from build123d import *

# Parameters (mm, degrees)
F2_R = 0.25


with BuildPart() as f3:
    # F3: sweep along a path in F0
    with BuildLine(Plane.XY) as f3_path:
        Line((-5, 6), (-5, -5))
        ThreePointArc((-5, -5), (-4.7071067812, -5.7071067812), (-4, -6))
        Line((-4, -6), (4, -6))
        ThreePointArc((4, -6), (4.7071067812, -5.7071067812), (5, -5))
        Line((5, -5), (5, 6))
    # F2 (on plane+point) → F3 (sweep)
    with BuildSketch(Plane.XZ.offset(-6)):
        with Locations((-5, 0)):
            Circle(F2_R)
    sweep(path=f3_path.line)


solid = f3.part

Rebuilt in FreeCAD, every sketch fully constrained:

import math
import FreeCAD as App
import Part
import Sketcher
from FreeCAD import Vector

doc = App.newDocument("Part")
body = doc.addObject("PartDesign::Body", "Body")

sketch1 = body.newObject("Sketcher::SketchObject", "Sketch")
sketch1.AttachmentSupport = (doc.getObject("XZ_Plane"), [""])
sketch1.MapMode = "FlatFace"
sketch1.AttachmentOffset = App.Placement(Vector(0, 0, -6), App.Rotation())
sketch1.addGeometry(Part.Circle(Vector(-5, 0, 0), Vector(0, 0, 1), 0.25), False)
sketch1.addConstraint([
    Sketcher.Constraint("PointOnObject", 0, 3, -1),
    Sketcher.Constraint("Diameter", 0, 0.5),
    Sketcher.Constraint("DistanceX", 0, 3, -1, 1, 5.0),
])

sketch2 = body.newObject("Sketcher::SketchObject", "Sketch001")
sketch2.AttachmentSupport = (doc.getObject("XY_Plane"), [""])
sketch2.MapMode = "FlatFace"
sketch2.addGeometry([
    Part.LineSegment(Vector(-5, 6, 0), Vector(-5, -5, 0)),
    Part.ArcOfCircle(Part.Circle(Vector(-4, -5, 0), Vector(0, 0, 1), 1), math.radians(180), math.radians(270)),
    Part.LineSegment(Vector(-4, -6, 0), Vector(4, -6, 0)),
    Part.ArcOfCircle(Part.Circle(Vector(4, -5, 0), Vector(0, 0, 1), 1), math.radians(-90), math.radians(0)),
    Part.LineSegment(Vector(5, -5, 0), Vector(5, 6, 0)),
], False)
sketch2.addConstraint([
    Sketcher.Constraint("Tangent", 0, 2, 1, 1),
    Sketcher.Constraint("Tangent", 1, 2, 2, 1),
    Sketcher.Constraint("Tangent", 2, 2, 3, 1),
    Sketcher.Constraint("Tangent", 3, 2, 4, 1),
    Sketcher.Constraint("Vertical", 0),
    Sketcher.Constraint("Horizontal", 2),
    Sketcher.Constraint("Vertical", 4),
    Sketcher.Constraint("Equal", 1, 3),
    Sketcher.Constraint("Symmetric", 0, 1, 4, 2, -2),
    Sketcher.Constraint("Radius", 1, 1.0),
    Sketcher.Constraint("DistanceX", 2, 1, 2, 2, 8.0),
    Sketcher.Constraint("DistanceY", 0, 2, 0, 1, 11.0),
    Sketcher.Constraint("DistanceY", 1, 3, -1, 1, 5.0),
])
doc.recompute()

additivepipe = body.newObject("PartDesign::AdditivePipe", "AdditivePipe")
additivepipe.Profile = sketch1
additivepipe.Spine = (sketch2, ["Edge1", "Edge2", "Edge3", "Edge4", "Edge5"])

doc.recompute()
